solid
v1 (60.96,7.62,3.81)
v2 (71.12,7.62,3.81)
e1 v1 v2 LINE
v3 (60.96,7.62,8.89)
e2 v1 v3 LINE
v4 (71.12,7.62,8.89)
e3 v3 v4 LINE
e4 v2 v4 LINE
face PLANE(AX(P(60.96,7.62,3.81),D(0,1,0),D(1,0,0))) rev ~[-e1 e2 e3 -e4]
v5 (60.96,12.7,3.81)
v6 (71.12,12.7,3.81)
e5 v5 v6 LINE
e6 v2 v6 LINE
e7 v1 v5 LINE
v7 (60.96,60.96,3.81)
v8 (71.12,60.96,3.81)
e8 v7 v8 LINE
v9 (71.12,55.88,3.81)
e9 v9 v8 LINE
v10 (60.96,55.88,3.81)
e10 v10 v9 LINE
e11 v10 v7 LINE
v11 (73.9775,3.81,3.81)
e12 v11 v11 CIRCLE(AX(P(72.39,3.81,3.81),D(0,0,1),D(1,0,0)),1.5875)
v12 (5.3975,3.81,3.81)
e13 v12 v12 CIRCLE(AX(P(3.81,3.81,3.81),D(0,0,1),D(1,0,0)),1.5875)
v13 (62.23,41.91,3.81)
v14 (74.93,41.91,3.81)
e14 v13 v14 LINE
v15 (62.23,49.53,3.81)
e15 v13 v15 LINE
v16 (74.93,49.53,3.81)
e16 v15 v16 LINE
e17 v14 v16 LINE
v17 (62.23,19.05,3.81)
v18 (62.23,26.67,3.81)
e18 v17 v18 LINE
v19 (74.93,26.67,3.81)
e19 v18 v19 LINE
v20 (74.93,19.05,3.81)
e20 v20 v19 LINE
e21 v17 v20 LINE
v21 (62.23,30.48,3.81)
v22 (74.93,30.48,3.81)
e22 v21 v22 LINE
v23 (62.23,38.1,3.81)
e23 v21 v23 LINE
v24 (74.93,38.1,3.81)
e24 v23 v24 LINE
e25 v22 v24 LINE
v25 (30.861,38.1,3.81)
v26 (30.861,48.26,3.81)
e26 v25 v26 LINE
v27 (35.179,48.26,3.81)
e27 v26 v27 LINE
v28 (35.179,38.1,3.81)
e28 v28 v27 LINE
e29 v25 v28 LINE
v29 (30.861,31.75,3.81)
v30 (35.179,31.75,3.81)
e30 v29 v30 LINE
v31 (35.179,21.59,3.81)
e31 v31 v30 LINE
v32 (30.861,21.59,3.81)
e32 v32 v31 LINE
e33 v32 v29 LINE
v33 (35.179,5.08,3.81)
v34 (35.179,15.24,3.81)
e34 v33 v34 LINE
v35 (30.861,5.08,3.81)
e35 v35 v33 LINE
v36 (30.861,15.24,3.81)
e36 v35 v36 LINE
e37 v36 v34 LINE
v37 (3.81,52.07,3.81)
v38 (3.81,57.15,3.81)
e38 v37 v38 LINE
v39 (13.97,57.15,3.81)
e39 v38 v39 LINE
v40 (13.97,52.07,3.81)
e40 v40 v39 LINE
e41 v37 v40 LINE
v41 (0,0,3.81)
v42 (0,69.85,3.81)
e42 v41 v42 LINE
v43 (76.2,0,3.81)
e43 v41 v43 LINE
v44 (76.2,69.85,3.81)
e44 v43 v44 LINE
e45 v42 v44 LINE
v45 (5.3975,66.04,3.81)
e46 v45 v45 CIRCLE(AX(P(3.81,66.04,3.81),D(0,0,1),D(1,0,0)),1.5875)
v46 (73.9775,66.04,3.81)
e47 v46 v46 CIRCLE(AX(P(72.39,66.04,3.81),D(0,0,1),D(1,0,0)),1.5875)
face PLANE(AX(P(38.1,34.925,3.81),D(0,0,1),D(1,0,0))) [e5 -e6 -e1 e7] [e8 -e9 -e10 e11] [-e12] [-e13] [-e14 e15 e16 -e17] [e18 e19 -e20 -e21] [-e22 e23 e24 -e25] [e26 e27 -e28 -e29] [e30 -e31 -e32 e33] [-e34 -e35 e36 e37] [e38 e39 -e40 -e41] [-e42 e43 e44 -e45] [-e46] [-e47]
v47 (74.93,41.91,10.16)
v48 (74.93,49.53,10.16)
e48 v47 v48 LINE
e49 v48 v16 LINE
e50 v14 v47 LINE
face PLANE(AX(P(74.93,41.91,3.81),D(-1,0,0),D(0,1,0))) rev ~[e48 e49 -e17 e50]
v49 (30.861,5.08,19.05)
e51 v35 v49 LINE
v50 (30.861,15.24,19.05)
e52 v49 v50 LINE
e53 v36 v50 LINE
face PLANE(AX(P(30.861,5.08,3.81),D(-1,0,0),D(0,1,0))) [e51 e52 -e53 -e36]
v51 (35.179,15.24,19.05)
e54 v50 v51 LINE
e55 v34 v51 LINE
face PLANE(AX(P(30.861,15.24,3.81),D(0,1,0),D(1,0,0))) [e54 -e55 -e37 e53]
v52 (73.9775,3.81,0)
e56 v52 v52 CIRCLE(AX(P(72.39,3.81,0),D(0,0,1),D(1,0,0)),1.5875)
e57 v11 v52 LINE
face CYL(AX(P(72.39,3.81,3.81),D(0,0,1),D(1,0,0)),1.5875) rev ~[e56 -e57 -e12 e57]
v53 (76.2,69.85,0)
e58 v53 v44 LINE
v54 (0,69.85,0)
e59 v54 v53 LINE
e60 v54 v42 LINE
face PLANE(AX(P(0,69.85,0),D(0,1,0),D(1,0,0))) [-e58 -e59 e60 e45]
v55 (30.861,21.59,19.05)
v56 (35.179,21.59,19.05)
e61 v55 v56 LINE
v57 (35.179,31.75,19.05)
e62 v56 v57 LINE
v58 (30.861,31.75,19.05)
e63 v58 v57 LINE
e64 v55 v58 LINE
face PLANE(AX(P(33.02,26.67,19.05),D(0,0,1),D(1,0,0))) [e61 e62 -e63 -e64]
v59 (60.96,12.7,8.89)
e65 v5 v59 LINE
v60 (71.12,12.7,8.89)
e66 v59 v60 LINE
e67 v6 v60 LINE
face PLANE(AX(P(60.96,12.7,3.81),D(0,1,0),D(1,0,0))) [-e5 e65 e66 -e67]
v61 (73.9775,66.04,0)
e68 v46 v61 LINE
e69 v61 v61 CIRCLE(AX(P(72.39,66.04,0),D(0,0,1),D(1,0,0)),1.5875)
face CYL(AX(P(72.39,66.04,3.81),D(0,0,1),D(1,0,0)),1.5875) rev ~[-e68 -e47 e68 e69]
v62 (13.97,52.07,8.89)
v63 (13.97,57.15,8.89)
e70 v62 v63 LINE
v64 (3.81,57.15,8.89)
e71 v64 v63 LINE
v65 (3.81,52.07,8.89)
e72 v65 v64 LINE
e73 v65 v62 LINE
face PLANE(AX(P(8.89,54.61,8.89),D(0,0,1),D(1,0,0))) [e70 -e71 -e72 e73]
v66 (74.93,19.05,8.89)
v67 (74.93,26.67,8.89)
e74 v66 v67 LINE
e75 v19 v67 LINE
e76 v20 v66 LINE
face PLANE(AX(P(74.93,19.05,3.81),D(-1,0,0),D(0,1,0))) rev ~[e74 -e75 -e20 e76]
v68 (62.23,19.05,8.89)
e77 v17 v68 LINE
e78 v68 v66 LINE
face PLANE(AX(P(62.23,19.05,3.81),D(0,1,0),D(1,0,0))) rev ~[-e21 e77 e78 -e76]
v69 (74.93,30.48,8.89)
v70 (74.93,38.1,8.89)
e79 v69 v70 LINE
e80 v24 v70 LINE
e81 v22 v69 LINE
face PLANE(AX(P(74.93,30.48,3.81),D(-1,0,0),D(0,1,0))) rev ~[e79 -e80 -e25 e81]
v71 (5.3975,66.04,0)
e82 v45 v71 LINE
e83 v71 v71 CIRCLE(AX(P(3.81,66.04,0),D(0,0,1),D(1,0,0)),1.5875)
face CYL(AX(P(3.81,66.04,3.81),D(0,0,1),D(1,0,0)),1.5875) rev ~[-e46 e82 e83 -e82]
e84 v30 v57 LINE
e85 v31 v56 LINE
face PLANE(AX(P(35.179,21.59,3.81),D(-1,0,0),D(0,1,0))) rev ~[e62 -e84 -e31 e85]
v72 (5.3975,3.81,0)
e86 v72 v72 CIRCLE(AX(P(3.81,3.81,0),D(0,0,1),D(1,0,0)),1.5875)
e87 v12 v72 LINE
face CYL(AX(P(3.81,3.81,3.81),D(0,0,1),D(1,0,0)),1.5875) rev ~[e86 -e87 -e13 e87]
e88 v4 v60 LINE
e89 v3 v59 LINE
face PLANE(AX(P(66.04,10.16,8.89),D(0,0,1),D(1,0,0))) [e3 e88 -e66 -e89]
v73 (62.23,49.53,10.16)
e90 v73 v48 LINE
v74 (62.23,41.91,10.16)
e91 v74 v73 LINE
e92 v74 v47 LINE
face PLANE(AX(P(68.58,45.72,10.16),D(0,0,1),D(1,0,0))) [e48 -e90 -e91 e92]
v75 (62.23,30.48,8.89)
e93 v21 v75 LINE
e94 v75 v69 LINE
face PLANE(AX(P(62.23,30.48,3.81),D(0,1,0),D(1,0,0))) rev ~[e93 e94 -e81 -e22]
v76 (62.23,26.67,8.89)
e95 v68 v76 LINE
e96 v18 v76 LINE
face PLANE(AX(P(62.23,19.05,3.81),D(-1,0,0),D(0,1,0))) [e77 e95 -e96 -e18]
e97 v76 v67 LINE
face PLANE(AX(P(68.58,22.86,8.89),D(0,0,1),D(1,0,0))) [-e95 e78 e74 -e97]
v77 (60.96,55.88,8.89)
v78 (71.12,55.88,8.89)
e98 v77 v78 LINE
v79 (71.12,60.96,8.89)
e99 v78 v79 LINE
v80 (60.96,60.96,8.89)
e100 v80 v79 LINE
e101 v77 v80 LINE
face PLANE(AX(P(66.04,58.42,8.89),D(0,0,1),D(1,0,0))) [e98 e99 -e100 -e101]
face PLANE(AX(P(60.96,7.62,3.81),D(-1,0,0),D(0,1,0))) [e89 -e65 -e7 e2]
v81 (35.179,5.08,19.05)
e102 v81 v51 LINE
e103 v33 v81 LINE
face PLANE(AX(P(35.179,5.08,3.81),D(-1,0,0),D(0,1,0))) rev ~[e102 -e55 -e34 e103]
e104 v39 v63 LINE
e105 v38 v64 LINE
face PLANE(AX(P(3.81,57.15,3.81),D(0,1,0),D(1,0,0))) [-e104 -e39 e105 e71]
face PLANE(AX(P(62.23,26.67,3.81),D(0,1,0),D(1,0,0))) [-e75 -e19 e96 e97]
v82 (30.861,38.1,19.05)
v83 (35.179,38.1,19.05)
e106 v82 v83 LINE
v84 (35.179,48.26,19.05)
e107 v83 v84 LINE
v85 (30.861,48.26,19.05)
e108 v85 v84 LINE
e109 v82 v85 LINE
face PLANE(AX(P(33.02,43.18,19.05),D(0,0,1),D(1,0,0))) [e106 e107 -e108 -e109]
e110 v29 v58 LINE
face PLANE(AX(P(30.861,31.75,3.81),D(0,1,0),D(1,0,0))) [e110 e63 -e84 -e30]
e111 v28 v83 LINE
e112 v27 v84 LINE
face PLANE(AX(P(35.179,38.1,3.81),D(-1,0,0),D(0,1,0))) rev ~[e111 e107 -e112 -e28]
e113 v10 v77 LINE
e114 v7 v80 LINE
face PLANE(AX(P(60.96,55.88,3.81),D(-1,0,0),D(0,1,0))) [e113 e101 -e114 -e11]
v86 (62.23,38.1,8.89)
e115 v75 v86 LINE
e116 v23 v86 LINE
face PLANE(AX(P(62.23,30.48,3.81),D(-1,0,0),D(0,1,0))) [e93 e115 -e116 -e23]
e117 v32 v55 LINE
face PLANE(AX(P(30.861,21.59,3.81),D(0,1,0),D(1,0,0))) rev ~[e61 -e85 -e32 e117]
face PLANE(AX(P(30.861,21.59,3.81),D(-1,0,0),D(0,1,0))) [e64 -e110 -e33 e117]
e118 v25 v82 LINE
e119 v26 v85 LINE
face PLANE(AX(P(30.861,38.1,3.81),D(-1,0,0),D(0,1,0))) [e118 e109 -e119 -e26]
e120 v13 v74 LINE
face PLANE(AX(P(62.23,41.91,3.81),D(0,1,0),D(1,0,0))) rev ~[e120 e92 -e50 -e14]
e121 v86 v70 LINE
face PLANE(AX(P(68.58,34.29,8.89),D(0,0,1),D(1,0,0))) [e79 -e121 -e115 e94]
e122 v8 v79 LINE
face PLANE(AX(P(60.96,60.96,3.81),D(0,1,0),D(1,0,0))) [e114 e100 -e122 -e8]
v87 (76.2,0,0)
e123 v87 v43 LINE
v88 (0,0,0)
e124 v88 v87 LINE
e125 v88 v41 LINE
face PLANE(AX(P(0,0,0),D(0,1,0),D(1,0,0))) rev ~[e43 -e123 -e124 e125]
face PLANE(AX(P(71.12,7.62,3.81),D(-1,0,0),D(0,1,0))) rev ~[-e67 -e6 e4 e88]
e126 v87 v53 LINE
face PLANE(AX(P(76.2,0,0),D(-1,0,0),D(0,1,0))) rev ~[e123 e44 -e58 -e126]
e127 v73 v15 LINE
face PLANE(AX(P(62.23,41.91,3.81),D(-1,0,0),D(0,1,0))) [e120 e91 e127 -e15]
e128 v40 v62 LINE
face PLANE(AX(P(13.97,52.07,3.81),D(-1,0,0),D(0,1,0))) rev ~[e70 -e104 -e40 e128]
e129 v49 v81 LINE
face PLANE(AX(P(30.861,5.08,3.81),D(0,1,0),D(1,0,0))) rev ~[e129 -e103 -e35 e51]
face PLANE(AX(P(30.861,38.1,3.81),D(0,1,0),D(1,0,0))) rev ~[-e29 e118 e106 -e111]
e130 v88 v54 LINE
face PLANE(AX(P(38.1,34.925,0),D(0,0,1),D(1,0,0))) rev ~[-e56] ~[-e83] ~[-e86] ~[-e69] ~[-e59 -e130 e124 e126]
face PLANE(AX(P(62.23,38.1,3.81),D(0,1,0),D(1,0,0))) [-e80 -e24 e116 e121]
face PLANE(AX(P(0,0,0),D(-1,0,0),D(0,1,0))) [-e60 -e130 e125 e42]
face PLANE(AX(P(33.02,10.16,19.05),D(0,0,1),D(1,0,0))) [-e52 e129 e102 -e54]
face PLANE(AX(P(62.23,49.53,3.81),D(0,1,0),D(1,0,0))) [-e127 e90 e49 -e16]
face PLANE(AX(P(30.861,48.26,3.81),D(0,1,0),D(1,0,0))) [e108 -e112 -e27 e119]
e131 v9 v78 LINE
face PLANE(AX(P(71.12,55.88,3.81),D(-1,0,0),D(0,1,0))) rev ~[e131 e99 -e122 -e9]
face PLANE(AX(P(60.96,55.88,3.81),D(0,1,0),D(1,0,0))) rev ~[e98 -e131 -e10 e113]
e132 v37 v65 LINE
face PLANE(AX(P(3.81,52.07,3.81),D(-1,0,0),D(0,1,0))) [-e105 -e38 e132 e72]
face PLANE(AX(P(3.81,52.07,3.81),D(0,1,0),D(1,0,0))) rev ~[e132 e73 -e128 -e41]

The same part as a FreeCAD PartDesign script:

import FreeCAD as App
import Part
import Sketcher
Q = App.Units.Quantity


def add_polygon(sketch, points):
    """Adds a closed chain of lines whose ends are joined by coincident constraints."""
    first, n = sketch.GeometryCount, len(points)
    for a, b in zip(points, points[1:] + points[:1]):
        sketch.addGeometry(Part.LineSegment(App.Vector(*a, 0), App.Vector(*b, 0)), False)
    for i in range(n):
        sketch.addConstraint(Sketcher.Constraint("Coincident", first + i, 2, first + (i + 1) % n, 1))

doc = App.newDocument("Part")
body = doc.addObject("PartDesign::Body", "Body")

# Sketch on XY plane
sketch1 = doc.addObject("Sketcher::SketchObject", "Sketch")
body.addObject(sketch1)
sketch1.AttachmentSupport = (doc.XY_Plane, [""])
sketch1.MapMode = "FlatFace"
add_polygon(sketch1, [(0, 70), (0, 0), (76, 0), (76, 70)])  # lines 0-3
sketch1.addConstraint([
    Sketcher.Constraint("Vertical", 0),
    Sketcher.Constraint("Horizontal", 1),
    Sketcher.Constraint("Vertical", 2),
    Sketcher.Constraint("Horizontal", 3),
    Sketcher.Constraint("Coincident", 0, 2, -1, 1),
    Sketcher.Constraint("DistanceX", 1, 1, 1, 2, Q("3 in")),
    Sketcher.Constraint("DistanceY", 0, 2, 0, 1, Q("2.75 in")),
])
pad1 = doc.addObject("PartDesign::Pad", "Pad")
body.addObject(pad1)
pad1.Profile = sketch1
pad1.Length = Q("0.15 in")

# Sketch on XY plane
sketch2 = doc.addObject("Sketcher::SketchObject", "Sketch001")
body.addObject(sketch2)
sketch2.AttachmentSupport = (doc.XY_Plane, [""])
sketch2.MapMode = "FlatFace"
sketch2.AttachmentOffset = App.Placement(App.Vector(0, 0, 0.15 * 25.4), App.Rotation())
sketch2.addGeometry([
    Part.Circle(App.Vector(3.8, 66, 0), App.Vector(0, 0, 1), 1.6),
    Part.Circle(App.Vector(72.4, 66, 0), App.Vector(0, 0, 1), 1.6),
    Part.Circle(App.Vector(72.4, 3.8, 0), App.Vector(0, 0, 1), 1.6),
    Part.Circle(App.Vector(3.8, 3.8, 0), App.Vector(0, 0, 1), 1.6),
], False)
sketch2.addConstraint([
    Sketcher.Constraint("Equal", 0, 1),
    Sketcher.Constraint("Equal", 1, 2),
    Sketcher.Constraint("Equal", 2, 3),
    Sketcher.Constraint("Horizontal", 0, 3, 1, 3),
    Sketcher.Constraint("Horizontal", 2, 3, 3, 3),
    Sketcher.Constraint("Vertical", 1, 3, 2, 3),
    Sketcher.Constraint("Vertical", 0, 3, 3, 3),
    Sketcher.Constraint("Diameter", 0, Q("0.125 in")),
    Sketcher.Constraint("DistanceY", -1, 1, 0, 3, Q("2.6 in")),
    Sketcher.Constraint("DistanceX", 0, 3, 1, 3, Q("2.7 in")),
    Sketcher.Constraint("DistanceX", -1, 1, 0, 3, Q("0.15 in")),
    Sketcher.Constraint("DistanceY", -1, 1, 2, 3, Q("0.15 in")),
])
pocket1 = doc.addObject("PartDesign::Pocket", "Pocket")
body.addObject(pocket1)
pocket1.Profile = sketch2
pocket1.Type = "ThroughAll"

# Sketch on XY plane
sketch3 = doc.addObject("Sketcher::SketchObject", "Sketch002")
body.addObject(sketch3)
sketch3.AttachmentSupport = (doc.XY_Plane, [""])
sketch3.MapMode = "FlatFace"
sketch3.AttachmentOffset = App.Placement(App.Vector(0, 0, 0.15 * 25.4), App.Rotation())
add_polygon(sketch3, [(62, 50), (62, 42), (75, 42), (75, 50)])  # lines 0-3
sketch3.addConstraint([
    Sketcher.Constraint("Vertical", 0),
    Sketcher.Constraint("Horizontal", 1),
    Sketcher.Constraint("Vertical", 2),
    Sketcher.Constraint("Horizontal", 3),
    Sketcher.Constraint("DistanceX", 1, 1, 1, 2, Q("0.5 in")),
    Sketcher.Constraint("DistanceY", 0, 2, 0, 1, Q("0.3 in")),
    Sketcher.Constraint("DistanceX", -1, 1, 0, 2, Q("2.45 in")),
    Sketcher.Constraint("DistanceY", -1, 1, 0, 2, Q("1.65 in")),
])
pad2 = doc.addObject("PartDesign::Pad", "Pad001")
body.addObject(pad2)
pad2.Profile = sketch3
pad2.Length = Q("0.25 in")

# Sketch on XY plane
sketch4 = doc.addObject("Sketcher::SketchObject", "Sketch003")
body.addObject(sketch4)
sketch4.AttachmentSupport = (doc.XY_Plane, [""])
sketch4.MapMode = "FlatFace"
sketch4.AttachmentOffset = App.Placement(App.Vector(0, 0, 0.15 * 25.4), App.Rotation())
add_polygon(sketch4, [(4, 57), (4, 52), (14, 52), (14, 57)])  # lines 0-3
add_polygon(sketch4, [(61, 61), (61, 56), (71, 56), (71, 61)])  # lines 4-7
add_polygon(sketch4, [(62, 50), (62, 42), (75, 42), (75, 50)])  # lines 8-11
add_polygon(sketch4, [(62, 38), (62, 30), (75, 30), (75, 38)])  # lines 12-15
add_polygon(sketch4, [(62, 27), (62, 19), (75, 19), (75, 27)])  # lines 16-19
add_polygon(sketch4, [(61, 13), (61, 8), (71, 8), (71, 13)])  # lines 20-23
sketch4.addConstraint([
    Sketcher.Constraint("Vertical", 0),
    Sketcher.Constraint("Horizontal", 1),
    Sketcher.Constraint("Vertical", 2),
    Sketcher.Constraint("Horizontal", 3),
    Sketcher.Constraint("Vertical", 4),
    Sketcher.Constraint("Horizontal", 5),
    Sketcher.Constraint("Vertical", 6),
    Sketcher.Constraint("Horizontal", 7),
    Sketcher.Constraint("Vertical", 8),
    Sketcher.Constraint("Horizontal", 9),
    Sketcher.Constraint("Vertical", 10),
    Sketcher.Constraint("Horizontal", 11),
    Sketcher.Constraint("Vertical", 12),
    Sketcher.Constraint("Horizontal", 13),
    Sketcher.Constraint("Vertical", 14),
    Sketcher.Constraint("Horizontal", 15),
    Sketcher.Constraint("Vertical", 16),
    Sketcher.Constraint("Horizontal", 17),
    Sketcher.Constraint("Vertical", 18),
    Sketcher.Constraint("Horizontal", 19),
    Sketcher.Constraint("Vertical", 20),
    Sketcher.Constraint("Horizontal", 21),
    Sketcher.Constraint("Vertical", 22),
    Sketcher.Constraint("Horizontal", 23),
    Sketcher.Constraint("Vertical", 11, 2, 12, 2),
    Sketcher.Constraint("Vertical", 10, 2, 13, 2),
    Sketcher.Constraint("Vertical", 15, 2, 16, 2),
    Sketcher.Constraint("Vertical", 14, 2, 17, 2),
    Sketcher.Constraint("Vertical", 7, 2, 20, 2),
    Sketcher.Constraint("Vertical", 6, 2, 21, 2),
    Sketcher.Constraint("Equal", 3, 5),
    Sketcher.Constraint("Equal", 2, 4),
    Sketcher.Constraint("Equal", 10, 12),
    Sketcher.Constraint("Equal", 14, 16),
    Sketcher.Constraint("Equal", 6, 20),
    Sketcher.Constraint("DistanceX", 1, 1, 1, 2, Q("0.4 in")),
    Sketcher.Constraint("DistanceX", 9, 1, 9, 2, Q("0.5 in")),
    Sketcher.Constraint("DistanceY", 0, 2, 0, 1, Q("0.2 in")),
    Sketcher.Constraint("DistanceY", 8, 2, 8, 1, Q("0.3 in")),
    Sketcher.Constraint("DistanceY", 12, 2, 4, 2, Q("1 in")),
    Sketcher.Constraint("DistanceX", -1, 1, 4, 2, Q("2.4 in")),
    Sketcher.Constraint("DistanceY", -1, 1, 4, 2, Q("2.2 in")),
    Sketcher.Constraint("DistanceY", -1, 1, 20, 2, Q("0.3 in")),
    Sketcher.Constraint("DistanceX", 1, 2, 8, 2, Q("1.9 in")),
    Sketcher.Constraint("DistanceY", 8, 2, 1, 2, Q("0.4 in")),
    Sketcher.Constraint("DistanceY", 16, 2, 8, 2, Q("0.9 in")),
    Sketcher.Constraint("DistanceX", -1, 1, 0, 2, Q("0.15 in")),
    Sketcher.Constraint("DistanceY", -1, 1, 0, 2, Q("2.05 in")),
])
pad3 = doc.addObject("PartDesign::Pad", "Pad002")
body.addObject(pad3)
pad3.Profile = sketch4
pad3.Length = Q("0.2 in")

# Sketch on XY plane
sketch5 = doc.addObject("Sketcher::SketchObject", "Sketch004")
body.addObject(sketch5)
sketch5.AttachmentSupport = (doc.XY_Plane, [""])
sketch5.MapMode = "FlatFace"
sketch5.AttachmentOffset = App.Placement(App.Vector(0, 0, 0.15 * 25.4), App.Rotation())
add_polygon(sketch5, [(30.9, 48.3), (30.9, 38.1), (35.2, 38.1), (35.2, 48.3)])  # lines 0-3
add_polygon(sketch5, [(30.9, 31.8), (30.9, 21.6), (35.2, 21.6), (35.2, 31.8)])  # lines 4-7
add_polygon(sketch5, [(30.9, 15.2), (30.9, 5.1), (35.2, 5.1), (35.2, 15.2)])  # lines 8-11
sketch5.addConstraint([
    Sketcher.Constraint("Vertical", 0),
    Sketcher.Constraint("Horizontal", 1),
    Sketcher.Constraint("Vertical", 2),
    Sketcher.Constraint("Horizontal", 3),
    Sketcher.Constraint("Vertical", 4),
    Sketcher.Constraint("Horizontal", 5),
    Sketcher.Constraint("Vertical", 6),
    Sketcher.Constraint("Horizontal", 7),
    Sketcher.Constraint("Vertical", 8),
    Sketcher.Constraint("Horizontal", 9),
    Sketcher.Constraint("Vertical", 10),
    Sketcher.Constraint("Horizontal", 11),
    Sketcher.Constraint("Vertical", 3, 2, 4, 2),
    Sketcher.Constraint("Vertical", 2, 2, 5, 2),
    Sketcher.Constraint("Vertical", 7, 2, 8, 2),
    Sketcher.Constraint("Vertical", 6, 2, 9, 2),
    Sketcher.Constraint("Equal", 2, 4),
    Sketcher.Constraint("Equal", 6, 8),
    Sketcher.Constraint("DistanceY", 0, 2, 0, 1, Q("0.4 in")),
    Sketcher.Constraint("DistanceX", 1, 1, 1, 2, Q("0.17 in")),
    Sketcher.Constraint("DistanceY", -1, 1, 0, 2, Q("1.5 in")),
    Sketcher.Constraint("DistanceY", -1, 1, 8, 2, Q("0.2 in")),
    Sketcher.Constraint("DistanceY", -1, 1, 4, 2, Q("0.85 in")),
    Sketcher.Constraint("DistanceX", -1, 1, 0, 2, Q("1.215 in")),
])
pad4 = doc.addObject("PartDesign::Pad", "Pad003")
body.addObject(pad4)
pad4.Profile = sketch5
pad4.Length = Q("0.6 in")

doc.recompute()
